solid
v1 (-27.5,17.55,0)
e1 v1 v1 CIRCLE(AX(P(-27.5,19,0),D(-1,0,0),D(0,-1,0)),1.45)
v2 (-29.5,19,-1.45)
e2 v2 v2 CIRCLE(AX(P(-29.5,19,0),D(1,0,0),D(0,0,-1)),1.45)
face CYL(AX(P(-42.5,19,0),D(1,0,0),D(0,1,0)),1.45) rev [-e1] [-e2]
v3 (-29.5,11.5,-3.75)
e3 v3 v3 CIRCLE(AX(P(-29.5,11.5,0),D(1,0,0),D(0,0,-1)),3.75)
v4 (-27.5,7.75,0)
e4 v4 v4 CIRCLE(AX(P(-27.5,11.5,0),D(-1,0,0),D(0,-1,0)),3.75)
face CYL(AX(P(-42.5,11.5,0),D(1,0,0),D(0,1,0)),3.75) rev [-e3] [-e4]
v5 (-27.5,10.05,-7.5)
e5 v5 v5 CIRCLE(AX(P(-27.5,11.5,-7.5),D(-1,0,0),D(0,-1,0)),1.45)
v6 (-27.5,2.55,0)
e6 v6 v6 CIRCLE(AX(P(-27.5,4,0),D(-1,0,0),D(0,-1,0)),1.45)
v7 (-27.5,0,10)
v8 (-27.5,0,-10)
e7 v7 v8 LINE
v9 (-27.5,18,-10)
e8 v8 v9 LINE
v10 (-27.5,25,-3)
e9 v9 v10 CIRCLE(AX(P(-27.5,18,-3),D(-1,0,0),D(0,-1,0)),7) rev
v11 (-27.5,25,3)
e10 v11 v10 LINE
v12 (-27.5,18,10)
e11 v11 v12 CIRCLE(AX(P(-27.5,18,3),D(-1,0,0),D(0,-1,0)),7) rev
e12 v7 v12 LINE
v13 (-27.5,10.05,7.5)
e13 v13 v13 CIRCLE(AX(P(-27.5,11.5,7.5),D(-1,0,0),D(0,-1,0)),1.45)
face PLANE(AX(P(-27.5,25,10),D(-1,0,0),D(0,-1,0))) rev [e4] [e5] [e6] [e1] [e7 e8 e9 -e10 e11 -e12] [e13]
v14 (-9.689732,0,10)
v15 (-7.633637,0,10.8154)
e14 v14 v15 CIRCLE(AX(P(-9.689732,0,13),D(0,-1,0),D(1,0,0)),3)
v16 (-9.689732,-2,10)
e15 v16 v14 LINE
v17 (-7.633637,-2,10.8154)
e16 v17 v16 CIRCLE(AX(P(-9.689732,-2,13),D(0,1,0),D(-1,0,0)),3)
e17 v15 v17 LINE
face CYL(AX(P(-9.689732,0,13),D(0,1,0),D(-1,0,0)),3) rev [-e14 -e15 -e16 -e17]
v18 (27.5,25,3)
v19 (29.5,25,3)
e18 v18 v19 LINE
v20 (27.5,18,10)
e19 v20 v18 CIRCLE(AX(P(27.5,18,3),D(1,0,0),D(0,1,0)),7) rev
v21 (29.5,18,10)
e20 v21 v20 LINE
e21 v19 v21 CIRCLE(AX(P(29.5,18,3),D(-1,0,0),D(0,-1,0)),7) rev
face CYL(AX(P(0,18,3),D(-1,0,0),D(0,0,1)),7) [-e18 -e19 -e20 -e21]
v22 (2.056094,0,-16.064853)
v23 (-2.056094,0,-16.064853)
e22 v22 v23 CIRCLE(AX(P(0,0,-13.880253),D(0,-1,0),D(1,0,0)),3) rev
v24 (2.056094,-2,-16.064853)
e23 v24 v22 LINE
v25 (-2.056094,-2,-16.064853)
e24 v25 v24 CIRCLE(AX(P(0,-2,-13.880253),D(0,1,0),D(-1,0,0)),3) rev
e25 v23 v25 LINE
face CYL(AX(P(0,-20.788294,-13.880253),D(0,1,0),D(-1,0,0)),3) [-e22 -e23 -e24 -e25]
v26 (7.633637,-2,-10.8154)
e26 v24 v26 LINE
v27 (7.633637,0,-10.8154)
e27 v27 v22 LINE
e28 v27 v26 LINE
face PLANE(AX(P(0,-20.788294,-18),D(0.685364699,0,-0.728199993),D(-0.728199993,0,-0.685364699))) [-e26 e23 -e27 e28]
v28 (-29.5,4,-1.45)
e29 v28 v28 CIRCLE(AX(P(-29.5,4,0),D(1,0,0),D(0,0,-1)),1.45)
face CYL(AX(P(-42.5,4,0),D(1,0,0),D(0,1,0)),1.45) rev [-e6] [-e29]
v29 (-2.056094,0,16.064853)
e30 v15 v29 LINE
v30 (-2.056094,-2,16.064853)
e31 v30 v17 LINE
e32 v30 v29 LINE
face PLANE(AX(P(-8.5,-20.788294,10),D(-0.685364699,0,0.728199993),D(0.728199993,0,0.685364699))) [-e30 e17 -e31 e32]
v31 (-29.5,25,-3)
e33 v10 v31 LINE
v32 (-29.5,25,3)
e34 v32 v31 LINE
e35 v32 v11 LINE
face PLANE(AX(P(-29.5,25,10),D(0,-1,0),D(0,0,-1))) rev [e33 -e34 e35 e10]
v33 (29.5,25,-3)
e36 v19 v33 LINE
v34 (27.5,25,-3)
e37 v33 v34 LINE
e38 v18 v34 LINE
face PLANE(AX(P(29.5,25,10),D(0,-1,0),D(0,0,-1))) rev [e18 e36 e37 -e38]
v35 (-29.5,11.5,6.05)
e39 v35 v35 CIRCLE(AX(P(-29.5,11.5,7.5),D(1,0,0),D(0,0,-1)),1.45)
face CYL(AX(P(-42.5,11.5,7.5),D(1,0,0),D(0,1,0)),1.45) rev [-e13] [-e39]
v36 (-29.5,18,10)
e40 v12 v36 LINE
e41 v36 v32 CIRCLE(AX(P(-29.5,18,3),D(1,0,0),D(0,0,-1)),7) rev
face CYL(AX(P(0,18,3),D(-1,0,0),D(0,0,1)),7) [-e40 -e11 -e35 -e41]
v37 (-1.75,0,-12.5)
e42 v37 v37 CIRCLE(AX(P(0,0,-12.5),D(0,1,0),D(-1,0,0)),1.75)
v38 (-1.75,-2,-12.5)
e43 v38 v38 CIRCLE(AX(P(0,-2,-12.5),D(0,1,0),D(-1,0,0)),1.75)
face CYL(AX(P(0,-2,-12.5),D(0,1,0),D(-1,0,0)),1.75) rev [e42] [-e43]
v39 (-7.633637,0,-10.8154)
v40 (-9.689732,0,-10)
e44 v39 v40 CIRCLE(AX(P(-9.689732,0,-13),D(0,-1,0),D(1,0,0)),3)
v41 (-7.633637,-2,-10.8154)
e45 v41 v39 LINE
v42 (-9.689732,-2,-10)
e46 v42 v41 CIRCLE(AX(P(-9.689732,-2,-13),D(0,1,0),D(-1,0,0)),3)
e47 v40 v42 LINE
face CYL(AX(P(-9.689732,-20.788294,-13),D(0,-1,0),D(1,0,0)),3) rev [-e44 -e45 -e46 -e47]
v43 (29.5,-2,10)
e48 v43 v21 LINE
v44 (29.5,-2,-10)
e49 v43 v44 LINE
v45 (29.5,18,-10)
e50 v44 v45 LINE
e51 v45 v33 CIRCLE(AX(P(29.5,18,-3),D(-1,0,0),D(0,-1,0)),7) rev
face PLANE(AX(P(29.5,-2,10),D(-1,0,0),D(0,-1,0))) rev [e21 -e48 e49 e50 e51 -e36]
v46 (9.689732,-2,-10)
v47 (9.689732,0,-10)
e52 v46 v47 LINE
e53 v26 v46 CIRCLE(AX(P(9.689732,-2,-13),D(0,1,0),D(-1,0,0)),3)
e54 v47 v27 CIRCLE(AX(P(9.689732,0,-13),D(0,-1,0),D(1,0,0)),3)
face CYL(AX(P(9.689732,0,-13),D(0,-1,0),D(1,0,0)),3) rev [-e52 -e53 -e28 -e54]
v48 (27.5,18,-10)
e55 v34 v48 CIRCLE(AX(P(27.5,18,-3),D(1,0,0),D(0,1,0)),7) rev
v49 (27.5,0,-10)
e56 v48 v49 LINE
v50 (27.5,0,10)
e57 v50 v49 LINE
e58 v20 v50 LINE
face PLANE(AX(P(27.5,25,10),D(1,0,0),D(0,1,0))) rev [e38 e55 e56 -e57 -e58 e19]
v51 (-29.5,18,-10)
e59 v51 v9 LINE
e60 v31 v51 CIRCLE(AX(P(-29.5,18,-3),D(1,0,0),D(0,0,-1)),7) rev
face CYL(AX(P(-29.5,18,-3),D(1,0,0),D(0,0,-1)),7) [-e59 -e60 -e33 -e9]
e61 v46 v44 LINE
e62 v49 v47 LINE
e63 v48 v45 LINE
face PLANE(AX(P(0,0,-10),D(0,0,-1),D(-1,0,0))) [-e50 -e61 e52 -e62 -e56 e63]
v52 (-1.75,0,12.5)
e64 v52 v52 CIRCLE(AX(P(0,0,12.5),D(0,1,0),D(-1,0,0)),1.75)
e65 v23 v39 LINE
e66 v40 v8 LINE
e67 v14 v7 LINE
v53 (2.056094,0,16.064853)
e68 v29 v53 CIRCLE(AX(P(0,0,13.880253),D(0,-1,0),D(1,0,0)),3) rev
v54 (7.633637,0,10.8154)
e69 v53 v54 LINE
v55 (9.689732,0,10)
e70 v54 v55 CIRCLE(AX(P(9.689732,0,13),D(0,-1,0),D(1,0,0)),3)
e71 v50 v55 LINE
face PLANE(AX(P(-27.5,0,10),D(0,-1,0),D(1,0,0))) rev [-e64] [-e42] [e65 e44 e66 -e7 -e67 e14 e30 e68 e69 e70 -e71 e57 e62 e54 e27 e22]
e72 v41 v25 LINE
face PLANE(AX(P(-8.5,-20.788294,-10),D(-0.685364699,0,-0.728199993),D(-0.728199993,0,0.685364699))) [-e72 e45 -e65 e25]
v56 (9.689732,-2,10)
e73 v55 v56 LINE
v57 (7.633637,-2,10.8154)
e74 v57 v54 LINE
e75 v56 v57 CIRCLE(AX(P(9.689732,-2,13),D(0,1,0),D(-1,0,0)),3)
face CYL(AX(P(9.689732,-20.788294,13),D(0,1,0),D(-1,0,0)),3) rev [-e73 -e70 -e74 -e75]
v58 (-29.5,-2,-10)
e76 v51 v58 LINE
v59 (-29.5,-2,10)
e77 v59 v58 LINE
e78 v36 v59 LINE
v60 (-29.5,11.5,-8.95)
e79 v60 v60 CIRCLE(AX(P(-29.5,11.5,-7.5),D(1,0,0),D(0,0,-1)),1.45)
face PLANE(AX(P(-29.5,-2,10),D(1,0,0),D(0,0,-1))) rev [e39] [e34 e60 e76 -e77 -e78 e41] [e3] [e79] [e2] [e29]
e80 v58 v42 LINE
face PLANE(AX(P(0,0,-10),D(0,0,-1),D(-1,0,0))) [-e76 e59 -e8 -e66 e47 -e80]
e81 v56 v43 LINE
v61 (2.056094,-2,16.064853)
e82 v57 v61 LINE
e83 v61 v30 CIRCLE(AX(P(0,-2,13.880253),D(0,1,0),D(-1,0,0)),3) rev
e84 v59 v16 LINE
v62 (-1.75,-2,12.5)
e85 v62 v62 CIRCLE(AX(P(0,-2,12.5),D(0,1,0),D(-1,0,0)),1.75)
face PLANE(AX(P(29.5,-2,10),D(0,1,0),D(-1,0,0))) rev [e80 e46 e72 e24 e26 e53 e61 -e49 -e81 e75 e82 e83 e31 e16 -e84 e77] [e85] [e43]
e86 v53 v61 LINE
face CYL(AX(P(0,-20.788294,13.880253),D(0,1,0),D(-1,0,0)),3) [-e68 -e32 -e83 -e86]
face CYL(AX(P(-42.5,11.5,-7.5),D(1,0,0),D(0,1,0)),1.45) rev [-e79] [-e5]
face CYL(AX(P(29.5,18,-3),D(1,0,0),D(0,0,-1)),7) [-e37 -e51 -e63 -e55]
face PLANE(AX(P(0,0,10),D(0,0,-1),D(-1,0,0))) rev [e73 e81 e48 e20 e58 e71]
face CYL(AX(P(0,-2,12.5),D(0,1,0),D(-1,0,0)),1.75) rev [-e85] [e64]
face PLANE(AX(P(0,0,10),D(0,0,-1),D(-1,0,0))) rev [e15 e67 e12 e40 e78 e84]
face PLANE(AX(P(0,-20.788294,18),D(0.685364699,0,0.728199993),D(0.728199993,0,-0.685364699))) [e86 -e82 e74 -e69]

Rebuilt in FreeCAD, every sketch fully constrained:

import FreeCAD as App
import Part
import Sketcher
from FreeCAD import Vector
Q = App.Units.Quantity


def edges_at(feature, points):
    """Names of the edges that pass closest to the given points."""
    edges = feature.Shape.Edges
    near = lambda p: min(range(len(edges)), key=lambda i: edges[i].distToShape(Part.Vertex(*p))[0])
    return sorted({f"Edge{near(p) + 1}" for p in points})


def add_polygon(sketch, points):
    """Adds a closed chain of lines whose ends are joined by coincident constraints."""
    first, n = sketch.GeometryCount, len(points)
    for a, b in zip(points, points[1:] + points[:1]):
        sketch.addGeometry(Part.LineSegment(App.Vector(*a, 0), App.Vector(*b, 0)), False)
    for i in range(n):
        sketch.addConstraint(Sketcher.Constraint("Coincident", first + i, 2, first + (i + 1) % n, 1))

doc = App.newDocument("Part")
body = doc.addObject("PartDesign::Body", "Body")

# Sketch on XY plane
sketch1 = body.newObject("Sketcher::SketchObject", "Sketch")
sketch1.AttachmentSupport = (doc.getObject("XY_Plane"), [""])
sketch1.MapMode = "FlatFace"
add_polygon(sketch1, [(-27.5, 0), (-27.5, 25), (-29.5, 25), (-29.5, -2), (29.5, -2), (29.5, 25), (27.5, 25), (27.5, 0)])  # lines 0-7
sketch1.addConstraint([
    Sketcher.Constraint("Vertical", 0),
    Sketcher.Constraint("Horizontal", 1),
    Sketcher.Constraint("Vertical", 2),
    Sketcher.Constraint("Horizontal", 3),
    Sketcher.Constraint("Vertical", 4),
    Sketcher.Constraint("Horizontal", 5),
    Sketcher.Constraint("Vertical", 6),
    Sketcher.Constraint("Horizontal", 7),
    Sketcher.Constraint("Symmetric", 6, 2, 7, 2, -1, 1),
    Sketcher.Constraint("Symmetric", 1, 2, 4, 2, -2),
    Sketcher.Constraint("DistanceX", 1, 2, 1, 1, Q("2 mm")),
    Sketcher.Constraint("DistanceX", 3, 1, 3, 2, Q("59 mm")),
    Sketcher.Constraint("DistanceY", 0, 1, 0, 2, Q("25 mm")),
    Sketcher.Constraint("DistanceY", 2, 2, 2, 1, Q("27 mm")),
])
pad1 = body.newObject("PartDesign::Pad", "Pad")
pad1.Profile = sketch1
pad1.Length = 20
pad1.Midplane = True
doc.recompute()

fillet = body.newObject("PartDesign::Fillet", "Fillet")
fillet.Base = (pad1, edges_at(pad1, [
    (-28.5, 25, -10),
    (28.5, 25, 10),
    (-28.5, 25, 10),
    (28.5, 25, -10),
]))
fillet.Radius = 7

# Sketch on YZ plane
sketch2 = body.newObject("Sketcher::SketchObject", "Sketch001")
sketch2.AttachmentSupport = (doc.getObject("YZ_Plane"), [""])
sketch2.MapMode = "FlatFace"
sketch2.AttachmentOffset = App.Placement(Vector(0, 0, -27.5), App.Rotation())
sketch2.addGeometry([
    Part.Circle(Vector(19, 0, 0), Vector(0, 0, 1), 1.4),  # 0
    Part.Circle(Vector(11.5, -7.5, 0), Vector(0, 0, 1), 1.4),  # 1
    Part.Circle(Vector(4, 0, 0), Vector(0, 0, 1), 1.4),  # 2
    Part.Circle(Vector(11.5, 7.5, 0), Vector(0, 0, 1), 1.4),  # 3
    Part.Circle(Vector(11.5, 0, 0), Vector(0, 0, 1), 3.8),  # 4
], False)
sketch2.addConstraint([
    Sketcher.Constraint("Equal", 0, 1),
    Sketcher.Constraint("Equal", 1, 2),
    Sketcher.Constraint("Equal", 2, 3),
    Sketcher.Constraint("Symmetric", 1, 3, 3, 3, -1),
    Sketcher.Constraint("PointOnObject", 0, 3, -1),
    Sketcher.Constraint("PointOnObject", 2, 3, -1),
    Sketcher.Constraint("PointOnObject", 4, 3, -1),
    Sketcher.Constraint("Vertical", 3, 3, 4, 3),
    Sketcher.Constraint("Diameter", 0, Q("2.9 mm")),
    Sketcher.Constraint("Diameter", 4, Q("7.5 mm")),
    Sketcher.Constraint("DistanceX", -1, 1, 0, 3, Q("19 mm")),
    Sketcher.Constraint("DistanceX", -1, 1, 2, 3, Q("4 mm")),
    Sketcher.Constraint("DistanceY", 1, 3, 3, 3, Q("15 mm")),
    Sketcher.Constraint("DistanceX", -1, 1, 1, 3, Q("11.5 mm")),
])
pocket1 = body.newObject("PartDesign::Pocket", "Pocket")
pocket1.Profile = sketch2
pocket1.Length = 30
pocket1.Midplane = True

# Sketch on XZ plane
sketch3 = body.newObject("Sketcher::SketchObject", "Sketch002")
sketch3.AttachmentSupport = (doc.getObject("XZ_Plane"), [""])
sketch3.MapMode = "FlatFace"
add_polygon(sketch3, [(0, -18), (-8, -10), (8, -10)])  # lines 0-2
add_polygon(sketch3, [(8, 10), (-8, 10), (0, 18)])  # lines 3-5
sketch3.addConstraint([
    Sketcher.Constraint("Horizontal", 1),
    Sketcher.Constraint("Horizontal", 3),
    Sketcher.Constraint("Symmetric", 1, 2, 3, 2, -1, 1),
    Sketcher.Constraint("Symmetric", 2, 2, 4, 2, -1, 1),
    Sketcher.Constraint("PointOnObject", 2, 2, -2),
    Sketcher.Constraint("Parallel", 0, 5),
    Sketcher.Constraint("Vertical", 0, 2, 3, 2),
    Sketcher.Constraint("DistanceX", 1, 1, 1, 2, Q("17 mm")),
    Sketcher.Constraint("DistanceY", 0, 2, -1, 1, Q("10 mm")),
    Sketcher.Constraint("DistanceY", 2, 2, -1, 1, Q("18 mm")),
])
pad2 = body.newObject("PartDesign::Pad", "Pad001")
pad2.Profile = sketch3
pad2.Length = 2
doc.recompute()

fillet2 = body.newObject("PartDesign::Fillet", "Fillet001")
fillet2.Base = (pad2, edges_at(pad2, [
    (8.5, -1, -10),
    (-8.5, -1, -10),
    (0, -1, -18),
    (8.5, -1, 10),
    (0, -1, 18),
    (-8.5, -1, 10),
]))
fillet2.Radius = 3

# Sketch on XZ plane
sketch4 = body.newObject("Sketcher::SketchObject", "Sketch003")
sketch4.AttachmentSupport = (doc.getObject("XZ_Plane"), [""])
sketch4.MapMode = "FlatFace"
sketch4.addGeometry([
    Part.Circle(Vector(0, -12.5, 0), Vector(0, 0, 1), 1.8),
    Part.Circle(Vector(0, 12.5, 0), Vector(0, 0, 1), 1.8),
], False)
sketch4.addConstraint([
    Sketcher.Constraint("Equal", 0, 1),
    Sketcher.Constraint("Symmetric", 0, 3, 1, 3, -1, 1),
    Sketcher.Constraint("PointOnObject", 0, 3, -2),
    Sketcher.Constraint("Diameter", 0, Q("3.5 mm")),
    Sketcher.Constraint("DistanceY", 0, 3, 1, 3, Q("25 mm")),
])
pocket2 = body.newObject("PartDesign::Pocket", "Pocket001")
pocket2.Profile = sketch4
pocket2.Type = "ThroughAll"
pocket2.Reversed = True

doc.recompute()
